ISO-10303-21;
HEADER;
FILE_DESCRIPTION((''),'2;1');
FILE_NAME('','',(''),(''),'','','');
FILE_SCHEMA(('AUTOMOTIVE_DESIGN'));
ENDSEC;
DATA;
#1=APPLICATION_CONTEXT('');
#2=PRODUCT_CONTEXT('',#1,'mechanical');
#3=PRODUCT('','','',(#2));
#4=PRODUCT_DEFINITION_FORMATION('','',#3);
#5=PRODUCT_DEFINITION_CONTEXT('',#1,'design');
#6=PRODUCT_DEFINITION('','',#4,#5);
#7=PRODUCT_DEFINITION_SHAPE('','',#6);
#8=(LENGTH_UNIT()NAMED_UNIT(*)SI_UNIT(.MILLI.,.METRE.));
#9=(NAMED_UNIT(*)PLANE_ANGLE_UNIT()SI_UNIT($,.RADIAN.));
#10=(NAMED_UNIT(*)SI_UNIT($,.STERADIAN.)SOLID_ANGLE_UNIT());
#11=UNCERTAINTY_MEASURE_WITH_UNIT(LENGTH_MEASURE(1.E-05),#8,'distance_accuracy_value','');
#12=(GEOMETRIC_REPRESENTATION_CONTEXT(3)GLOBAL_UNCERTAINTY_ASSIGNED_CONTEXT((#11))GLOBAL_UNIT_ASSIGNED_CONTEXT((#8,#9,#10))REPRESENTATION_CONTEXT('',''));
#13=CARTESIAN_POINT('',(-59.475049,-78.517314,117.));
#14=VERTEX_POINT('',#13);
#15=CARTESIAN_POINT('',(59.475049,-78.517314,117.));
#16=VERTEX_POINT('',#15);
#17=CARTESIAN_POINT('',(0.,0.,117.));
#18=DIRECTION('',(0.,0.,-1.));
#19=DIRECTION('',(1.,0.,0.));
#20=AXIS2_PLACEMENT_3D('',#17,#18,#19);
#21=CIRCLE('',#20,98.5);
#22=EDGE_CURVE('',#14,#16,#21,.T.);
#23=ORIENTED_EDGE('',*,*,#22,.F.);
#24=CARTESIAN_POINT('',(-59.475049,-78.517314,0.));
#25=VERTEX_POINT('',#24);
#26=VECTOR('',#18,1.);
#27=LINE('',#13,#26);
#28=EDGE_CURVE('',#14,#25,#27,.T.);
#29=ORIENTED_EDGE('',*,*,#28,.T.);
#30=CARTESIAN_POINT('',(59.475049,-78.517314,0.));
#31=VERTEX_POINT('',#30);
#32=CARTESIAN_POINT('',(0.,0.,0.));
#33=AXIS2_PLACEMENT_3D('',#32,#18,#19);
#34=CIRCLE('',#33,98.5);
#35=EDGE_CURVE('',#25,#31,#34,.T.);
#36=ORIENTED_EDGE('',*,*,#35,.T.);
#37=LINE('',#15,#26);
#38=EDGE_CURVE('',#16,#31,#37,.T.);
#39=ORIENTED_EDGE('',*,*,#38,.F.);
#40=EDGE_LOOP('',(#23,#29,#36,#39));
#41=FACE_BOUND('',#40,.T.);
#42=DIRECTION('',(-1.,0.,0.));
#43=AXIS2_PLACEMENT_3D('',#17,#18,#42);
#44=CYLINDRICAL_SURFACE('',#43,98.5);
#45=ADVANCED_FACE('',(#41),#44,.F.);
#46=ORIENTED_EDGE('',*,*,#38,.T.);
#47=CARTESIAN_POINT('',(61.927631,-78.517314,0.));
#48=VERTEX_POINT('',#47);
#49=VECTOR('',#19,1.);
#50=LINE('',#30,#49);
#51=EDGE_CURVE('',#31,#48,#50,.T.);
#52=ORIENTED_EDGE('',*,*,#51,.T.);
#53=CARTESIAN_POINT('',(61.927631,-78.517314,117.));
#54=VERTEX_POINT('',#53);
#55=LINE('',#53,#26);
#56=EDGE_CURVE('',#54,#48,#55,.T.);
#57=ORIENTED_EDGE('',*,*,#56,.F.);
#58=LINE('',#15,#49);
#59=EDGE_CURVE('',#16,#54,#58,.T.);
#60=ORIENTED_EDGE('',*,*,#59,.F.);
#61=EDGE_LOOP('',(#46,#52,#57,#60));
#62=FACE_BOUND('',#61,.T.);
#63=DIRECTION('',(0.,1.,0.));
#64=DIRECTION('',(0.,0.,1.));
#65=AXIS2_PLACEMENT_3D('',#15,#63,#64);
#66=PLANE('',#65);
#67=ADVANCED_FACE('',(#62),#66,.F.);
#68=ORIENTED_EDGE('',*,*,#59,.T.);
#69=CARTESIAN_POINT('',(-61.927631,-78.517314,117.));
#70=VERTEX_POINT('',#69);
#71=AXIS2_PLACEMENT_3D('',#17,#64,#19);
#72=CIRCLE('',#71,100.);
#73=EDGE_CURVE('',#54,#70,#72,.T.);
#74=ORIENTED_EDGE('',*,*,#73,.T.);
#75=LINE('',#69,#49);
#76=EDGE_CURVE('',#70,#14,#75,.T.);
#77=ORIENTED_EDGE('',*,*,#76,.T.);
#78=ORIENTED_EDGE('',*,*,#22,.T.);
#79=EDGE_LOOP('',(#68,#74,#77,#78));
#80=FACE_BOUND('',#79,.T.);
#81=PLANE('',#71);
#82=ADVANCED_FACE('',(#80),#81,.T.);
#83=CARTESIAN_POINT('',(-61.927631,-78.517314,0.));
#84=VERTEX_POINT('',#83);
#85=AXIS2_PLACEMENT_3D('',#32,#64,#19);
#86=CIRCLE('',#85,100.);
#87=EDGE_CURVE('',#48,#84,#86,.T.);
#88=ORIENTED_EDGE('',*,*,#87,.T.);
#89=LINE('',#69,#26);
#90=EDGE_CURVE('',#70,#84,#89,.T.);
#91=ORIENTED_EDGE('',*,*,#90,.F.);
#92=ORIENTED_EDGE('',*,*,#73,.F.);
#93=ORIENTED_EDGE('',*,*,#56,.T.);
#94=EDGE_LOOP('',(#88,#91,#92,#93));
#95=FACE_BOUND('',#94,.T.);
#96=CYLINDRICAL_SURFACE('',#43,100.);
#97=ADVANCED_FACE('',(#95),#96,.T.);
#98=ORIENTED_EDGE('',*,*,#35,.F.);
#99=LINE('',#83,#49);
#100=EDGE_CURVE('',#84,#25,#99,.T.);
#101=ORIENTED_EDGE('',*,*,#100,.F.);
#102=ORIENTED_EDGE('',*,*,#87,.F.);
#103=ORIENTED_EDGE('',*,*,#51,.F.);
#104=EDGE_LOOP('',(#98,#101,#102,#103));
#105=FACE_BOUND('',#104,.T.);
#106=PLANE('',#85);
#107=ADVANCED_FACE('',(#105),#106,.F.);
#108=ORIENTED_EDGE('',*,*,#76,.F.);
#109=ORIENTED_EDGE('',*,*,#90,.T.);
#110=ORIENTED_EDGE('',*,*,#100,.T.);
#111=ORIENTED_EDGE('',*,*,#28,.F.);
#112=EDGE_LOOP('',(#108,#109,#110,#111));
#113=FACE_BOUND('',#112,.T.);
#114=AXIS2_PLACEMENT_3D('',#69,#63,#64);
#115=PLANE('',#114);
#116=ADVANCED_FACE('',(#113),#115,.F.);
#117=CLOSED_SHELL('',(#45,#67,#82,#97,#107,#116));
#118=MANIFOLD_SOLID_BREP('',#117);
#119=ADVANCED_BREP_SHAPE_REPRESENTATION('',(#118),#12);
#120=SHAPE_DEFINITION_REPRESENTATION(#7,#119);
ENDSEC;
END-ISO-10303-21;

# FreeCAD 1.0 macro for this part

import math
import FreeCAD as App
import Part
import Sketcher
from FreeCAD import Vector

doc = App.newDocument("Part")
body = doc.addObject("PartDesign::Body", "Body")

# Sketch on XY plane
sketch1 = body.newObject("Sketcher::SketchObject", "Sketch")
sketch1.AttachmentSupport = (doc.getObject("XY_Plane"), [""])
sketch1.MapMode = "FlatFace"
sketch1.addGeometry([
    Part.LineSegment(Vector(-61.927631, -78.517314, 0), Vector(-59.475049, -78.517314, 0)),
    Part.ArcOfCircle(Part.Circle(Vector(0, 0, 0), Vector(0, 0, 1), 98.5), math.radians(-52.856913), math.radians(232.856913)),
    Part.LineSegment(Vector(59.475049, -78.517314, 0), Vector(61.927631, -78.517314, 0)),
    Part.ArcOfCircle(Part.Circle(Vector(0, 0, 0), Vector(0, 0, 1), 100), math.radians(-51.736694), math.radians(231.736694)),
], False)
sketch1.addConstraint([
    Sketcher.Constraint("Coincident", 0, 2, 1, 2),
    Sketcher.Constraint("Coincident", 1, 1, 2, 1),
    Sketcher.Constraint("Coincident", 2, 2, 3, 1),
    Sketcher.Constraint("Coincident", 3, 2, 0, 1),
    Sketcher.Constraint("Horizontal", 0),
    Sketcher.Constraint("Horizontal", 2),
    Sketcher.Constraint("Coincident", 1, 3, -1, 1),
    Sketcher.Constraint("Coincident", 3, 3, -1, 1),
    Sketcher.Constraint("Horizontal", 0, 2, 1, 1),
    Sketcher.Constraint("Radius", 3, 100.0),
    Sketcher.Constraint("Radius", 1, 98.5),
    Sketcher.Constraint("DistanceX", 0, 1, 0, 2, 2.452582),
])
pad1 = body.newObject("PartDesign::Pad", "Pad")
pad1.Profile = sketch1
pad1.Length = 117

doc.recompute()
